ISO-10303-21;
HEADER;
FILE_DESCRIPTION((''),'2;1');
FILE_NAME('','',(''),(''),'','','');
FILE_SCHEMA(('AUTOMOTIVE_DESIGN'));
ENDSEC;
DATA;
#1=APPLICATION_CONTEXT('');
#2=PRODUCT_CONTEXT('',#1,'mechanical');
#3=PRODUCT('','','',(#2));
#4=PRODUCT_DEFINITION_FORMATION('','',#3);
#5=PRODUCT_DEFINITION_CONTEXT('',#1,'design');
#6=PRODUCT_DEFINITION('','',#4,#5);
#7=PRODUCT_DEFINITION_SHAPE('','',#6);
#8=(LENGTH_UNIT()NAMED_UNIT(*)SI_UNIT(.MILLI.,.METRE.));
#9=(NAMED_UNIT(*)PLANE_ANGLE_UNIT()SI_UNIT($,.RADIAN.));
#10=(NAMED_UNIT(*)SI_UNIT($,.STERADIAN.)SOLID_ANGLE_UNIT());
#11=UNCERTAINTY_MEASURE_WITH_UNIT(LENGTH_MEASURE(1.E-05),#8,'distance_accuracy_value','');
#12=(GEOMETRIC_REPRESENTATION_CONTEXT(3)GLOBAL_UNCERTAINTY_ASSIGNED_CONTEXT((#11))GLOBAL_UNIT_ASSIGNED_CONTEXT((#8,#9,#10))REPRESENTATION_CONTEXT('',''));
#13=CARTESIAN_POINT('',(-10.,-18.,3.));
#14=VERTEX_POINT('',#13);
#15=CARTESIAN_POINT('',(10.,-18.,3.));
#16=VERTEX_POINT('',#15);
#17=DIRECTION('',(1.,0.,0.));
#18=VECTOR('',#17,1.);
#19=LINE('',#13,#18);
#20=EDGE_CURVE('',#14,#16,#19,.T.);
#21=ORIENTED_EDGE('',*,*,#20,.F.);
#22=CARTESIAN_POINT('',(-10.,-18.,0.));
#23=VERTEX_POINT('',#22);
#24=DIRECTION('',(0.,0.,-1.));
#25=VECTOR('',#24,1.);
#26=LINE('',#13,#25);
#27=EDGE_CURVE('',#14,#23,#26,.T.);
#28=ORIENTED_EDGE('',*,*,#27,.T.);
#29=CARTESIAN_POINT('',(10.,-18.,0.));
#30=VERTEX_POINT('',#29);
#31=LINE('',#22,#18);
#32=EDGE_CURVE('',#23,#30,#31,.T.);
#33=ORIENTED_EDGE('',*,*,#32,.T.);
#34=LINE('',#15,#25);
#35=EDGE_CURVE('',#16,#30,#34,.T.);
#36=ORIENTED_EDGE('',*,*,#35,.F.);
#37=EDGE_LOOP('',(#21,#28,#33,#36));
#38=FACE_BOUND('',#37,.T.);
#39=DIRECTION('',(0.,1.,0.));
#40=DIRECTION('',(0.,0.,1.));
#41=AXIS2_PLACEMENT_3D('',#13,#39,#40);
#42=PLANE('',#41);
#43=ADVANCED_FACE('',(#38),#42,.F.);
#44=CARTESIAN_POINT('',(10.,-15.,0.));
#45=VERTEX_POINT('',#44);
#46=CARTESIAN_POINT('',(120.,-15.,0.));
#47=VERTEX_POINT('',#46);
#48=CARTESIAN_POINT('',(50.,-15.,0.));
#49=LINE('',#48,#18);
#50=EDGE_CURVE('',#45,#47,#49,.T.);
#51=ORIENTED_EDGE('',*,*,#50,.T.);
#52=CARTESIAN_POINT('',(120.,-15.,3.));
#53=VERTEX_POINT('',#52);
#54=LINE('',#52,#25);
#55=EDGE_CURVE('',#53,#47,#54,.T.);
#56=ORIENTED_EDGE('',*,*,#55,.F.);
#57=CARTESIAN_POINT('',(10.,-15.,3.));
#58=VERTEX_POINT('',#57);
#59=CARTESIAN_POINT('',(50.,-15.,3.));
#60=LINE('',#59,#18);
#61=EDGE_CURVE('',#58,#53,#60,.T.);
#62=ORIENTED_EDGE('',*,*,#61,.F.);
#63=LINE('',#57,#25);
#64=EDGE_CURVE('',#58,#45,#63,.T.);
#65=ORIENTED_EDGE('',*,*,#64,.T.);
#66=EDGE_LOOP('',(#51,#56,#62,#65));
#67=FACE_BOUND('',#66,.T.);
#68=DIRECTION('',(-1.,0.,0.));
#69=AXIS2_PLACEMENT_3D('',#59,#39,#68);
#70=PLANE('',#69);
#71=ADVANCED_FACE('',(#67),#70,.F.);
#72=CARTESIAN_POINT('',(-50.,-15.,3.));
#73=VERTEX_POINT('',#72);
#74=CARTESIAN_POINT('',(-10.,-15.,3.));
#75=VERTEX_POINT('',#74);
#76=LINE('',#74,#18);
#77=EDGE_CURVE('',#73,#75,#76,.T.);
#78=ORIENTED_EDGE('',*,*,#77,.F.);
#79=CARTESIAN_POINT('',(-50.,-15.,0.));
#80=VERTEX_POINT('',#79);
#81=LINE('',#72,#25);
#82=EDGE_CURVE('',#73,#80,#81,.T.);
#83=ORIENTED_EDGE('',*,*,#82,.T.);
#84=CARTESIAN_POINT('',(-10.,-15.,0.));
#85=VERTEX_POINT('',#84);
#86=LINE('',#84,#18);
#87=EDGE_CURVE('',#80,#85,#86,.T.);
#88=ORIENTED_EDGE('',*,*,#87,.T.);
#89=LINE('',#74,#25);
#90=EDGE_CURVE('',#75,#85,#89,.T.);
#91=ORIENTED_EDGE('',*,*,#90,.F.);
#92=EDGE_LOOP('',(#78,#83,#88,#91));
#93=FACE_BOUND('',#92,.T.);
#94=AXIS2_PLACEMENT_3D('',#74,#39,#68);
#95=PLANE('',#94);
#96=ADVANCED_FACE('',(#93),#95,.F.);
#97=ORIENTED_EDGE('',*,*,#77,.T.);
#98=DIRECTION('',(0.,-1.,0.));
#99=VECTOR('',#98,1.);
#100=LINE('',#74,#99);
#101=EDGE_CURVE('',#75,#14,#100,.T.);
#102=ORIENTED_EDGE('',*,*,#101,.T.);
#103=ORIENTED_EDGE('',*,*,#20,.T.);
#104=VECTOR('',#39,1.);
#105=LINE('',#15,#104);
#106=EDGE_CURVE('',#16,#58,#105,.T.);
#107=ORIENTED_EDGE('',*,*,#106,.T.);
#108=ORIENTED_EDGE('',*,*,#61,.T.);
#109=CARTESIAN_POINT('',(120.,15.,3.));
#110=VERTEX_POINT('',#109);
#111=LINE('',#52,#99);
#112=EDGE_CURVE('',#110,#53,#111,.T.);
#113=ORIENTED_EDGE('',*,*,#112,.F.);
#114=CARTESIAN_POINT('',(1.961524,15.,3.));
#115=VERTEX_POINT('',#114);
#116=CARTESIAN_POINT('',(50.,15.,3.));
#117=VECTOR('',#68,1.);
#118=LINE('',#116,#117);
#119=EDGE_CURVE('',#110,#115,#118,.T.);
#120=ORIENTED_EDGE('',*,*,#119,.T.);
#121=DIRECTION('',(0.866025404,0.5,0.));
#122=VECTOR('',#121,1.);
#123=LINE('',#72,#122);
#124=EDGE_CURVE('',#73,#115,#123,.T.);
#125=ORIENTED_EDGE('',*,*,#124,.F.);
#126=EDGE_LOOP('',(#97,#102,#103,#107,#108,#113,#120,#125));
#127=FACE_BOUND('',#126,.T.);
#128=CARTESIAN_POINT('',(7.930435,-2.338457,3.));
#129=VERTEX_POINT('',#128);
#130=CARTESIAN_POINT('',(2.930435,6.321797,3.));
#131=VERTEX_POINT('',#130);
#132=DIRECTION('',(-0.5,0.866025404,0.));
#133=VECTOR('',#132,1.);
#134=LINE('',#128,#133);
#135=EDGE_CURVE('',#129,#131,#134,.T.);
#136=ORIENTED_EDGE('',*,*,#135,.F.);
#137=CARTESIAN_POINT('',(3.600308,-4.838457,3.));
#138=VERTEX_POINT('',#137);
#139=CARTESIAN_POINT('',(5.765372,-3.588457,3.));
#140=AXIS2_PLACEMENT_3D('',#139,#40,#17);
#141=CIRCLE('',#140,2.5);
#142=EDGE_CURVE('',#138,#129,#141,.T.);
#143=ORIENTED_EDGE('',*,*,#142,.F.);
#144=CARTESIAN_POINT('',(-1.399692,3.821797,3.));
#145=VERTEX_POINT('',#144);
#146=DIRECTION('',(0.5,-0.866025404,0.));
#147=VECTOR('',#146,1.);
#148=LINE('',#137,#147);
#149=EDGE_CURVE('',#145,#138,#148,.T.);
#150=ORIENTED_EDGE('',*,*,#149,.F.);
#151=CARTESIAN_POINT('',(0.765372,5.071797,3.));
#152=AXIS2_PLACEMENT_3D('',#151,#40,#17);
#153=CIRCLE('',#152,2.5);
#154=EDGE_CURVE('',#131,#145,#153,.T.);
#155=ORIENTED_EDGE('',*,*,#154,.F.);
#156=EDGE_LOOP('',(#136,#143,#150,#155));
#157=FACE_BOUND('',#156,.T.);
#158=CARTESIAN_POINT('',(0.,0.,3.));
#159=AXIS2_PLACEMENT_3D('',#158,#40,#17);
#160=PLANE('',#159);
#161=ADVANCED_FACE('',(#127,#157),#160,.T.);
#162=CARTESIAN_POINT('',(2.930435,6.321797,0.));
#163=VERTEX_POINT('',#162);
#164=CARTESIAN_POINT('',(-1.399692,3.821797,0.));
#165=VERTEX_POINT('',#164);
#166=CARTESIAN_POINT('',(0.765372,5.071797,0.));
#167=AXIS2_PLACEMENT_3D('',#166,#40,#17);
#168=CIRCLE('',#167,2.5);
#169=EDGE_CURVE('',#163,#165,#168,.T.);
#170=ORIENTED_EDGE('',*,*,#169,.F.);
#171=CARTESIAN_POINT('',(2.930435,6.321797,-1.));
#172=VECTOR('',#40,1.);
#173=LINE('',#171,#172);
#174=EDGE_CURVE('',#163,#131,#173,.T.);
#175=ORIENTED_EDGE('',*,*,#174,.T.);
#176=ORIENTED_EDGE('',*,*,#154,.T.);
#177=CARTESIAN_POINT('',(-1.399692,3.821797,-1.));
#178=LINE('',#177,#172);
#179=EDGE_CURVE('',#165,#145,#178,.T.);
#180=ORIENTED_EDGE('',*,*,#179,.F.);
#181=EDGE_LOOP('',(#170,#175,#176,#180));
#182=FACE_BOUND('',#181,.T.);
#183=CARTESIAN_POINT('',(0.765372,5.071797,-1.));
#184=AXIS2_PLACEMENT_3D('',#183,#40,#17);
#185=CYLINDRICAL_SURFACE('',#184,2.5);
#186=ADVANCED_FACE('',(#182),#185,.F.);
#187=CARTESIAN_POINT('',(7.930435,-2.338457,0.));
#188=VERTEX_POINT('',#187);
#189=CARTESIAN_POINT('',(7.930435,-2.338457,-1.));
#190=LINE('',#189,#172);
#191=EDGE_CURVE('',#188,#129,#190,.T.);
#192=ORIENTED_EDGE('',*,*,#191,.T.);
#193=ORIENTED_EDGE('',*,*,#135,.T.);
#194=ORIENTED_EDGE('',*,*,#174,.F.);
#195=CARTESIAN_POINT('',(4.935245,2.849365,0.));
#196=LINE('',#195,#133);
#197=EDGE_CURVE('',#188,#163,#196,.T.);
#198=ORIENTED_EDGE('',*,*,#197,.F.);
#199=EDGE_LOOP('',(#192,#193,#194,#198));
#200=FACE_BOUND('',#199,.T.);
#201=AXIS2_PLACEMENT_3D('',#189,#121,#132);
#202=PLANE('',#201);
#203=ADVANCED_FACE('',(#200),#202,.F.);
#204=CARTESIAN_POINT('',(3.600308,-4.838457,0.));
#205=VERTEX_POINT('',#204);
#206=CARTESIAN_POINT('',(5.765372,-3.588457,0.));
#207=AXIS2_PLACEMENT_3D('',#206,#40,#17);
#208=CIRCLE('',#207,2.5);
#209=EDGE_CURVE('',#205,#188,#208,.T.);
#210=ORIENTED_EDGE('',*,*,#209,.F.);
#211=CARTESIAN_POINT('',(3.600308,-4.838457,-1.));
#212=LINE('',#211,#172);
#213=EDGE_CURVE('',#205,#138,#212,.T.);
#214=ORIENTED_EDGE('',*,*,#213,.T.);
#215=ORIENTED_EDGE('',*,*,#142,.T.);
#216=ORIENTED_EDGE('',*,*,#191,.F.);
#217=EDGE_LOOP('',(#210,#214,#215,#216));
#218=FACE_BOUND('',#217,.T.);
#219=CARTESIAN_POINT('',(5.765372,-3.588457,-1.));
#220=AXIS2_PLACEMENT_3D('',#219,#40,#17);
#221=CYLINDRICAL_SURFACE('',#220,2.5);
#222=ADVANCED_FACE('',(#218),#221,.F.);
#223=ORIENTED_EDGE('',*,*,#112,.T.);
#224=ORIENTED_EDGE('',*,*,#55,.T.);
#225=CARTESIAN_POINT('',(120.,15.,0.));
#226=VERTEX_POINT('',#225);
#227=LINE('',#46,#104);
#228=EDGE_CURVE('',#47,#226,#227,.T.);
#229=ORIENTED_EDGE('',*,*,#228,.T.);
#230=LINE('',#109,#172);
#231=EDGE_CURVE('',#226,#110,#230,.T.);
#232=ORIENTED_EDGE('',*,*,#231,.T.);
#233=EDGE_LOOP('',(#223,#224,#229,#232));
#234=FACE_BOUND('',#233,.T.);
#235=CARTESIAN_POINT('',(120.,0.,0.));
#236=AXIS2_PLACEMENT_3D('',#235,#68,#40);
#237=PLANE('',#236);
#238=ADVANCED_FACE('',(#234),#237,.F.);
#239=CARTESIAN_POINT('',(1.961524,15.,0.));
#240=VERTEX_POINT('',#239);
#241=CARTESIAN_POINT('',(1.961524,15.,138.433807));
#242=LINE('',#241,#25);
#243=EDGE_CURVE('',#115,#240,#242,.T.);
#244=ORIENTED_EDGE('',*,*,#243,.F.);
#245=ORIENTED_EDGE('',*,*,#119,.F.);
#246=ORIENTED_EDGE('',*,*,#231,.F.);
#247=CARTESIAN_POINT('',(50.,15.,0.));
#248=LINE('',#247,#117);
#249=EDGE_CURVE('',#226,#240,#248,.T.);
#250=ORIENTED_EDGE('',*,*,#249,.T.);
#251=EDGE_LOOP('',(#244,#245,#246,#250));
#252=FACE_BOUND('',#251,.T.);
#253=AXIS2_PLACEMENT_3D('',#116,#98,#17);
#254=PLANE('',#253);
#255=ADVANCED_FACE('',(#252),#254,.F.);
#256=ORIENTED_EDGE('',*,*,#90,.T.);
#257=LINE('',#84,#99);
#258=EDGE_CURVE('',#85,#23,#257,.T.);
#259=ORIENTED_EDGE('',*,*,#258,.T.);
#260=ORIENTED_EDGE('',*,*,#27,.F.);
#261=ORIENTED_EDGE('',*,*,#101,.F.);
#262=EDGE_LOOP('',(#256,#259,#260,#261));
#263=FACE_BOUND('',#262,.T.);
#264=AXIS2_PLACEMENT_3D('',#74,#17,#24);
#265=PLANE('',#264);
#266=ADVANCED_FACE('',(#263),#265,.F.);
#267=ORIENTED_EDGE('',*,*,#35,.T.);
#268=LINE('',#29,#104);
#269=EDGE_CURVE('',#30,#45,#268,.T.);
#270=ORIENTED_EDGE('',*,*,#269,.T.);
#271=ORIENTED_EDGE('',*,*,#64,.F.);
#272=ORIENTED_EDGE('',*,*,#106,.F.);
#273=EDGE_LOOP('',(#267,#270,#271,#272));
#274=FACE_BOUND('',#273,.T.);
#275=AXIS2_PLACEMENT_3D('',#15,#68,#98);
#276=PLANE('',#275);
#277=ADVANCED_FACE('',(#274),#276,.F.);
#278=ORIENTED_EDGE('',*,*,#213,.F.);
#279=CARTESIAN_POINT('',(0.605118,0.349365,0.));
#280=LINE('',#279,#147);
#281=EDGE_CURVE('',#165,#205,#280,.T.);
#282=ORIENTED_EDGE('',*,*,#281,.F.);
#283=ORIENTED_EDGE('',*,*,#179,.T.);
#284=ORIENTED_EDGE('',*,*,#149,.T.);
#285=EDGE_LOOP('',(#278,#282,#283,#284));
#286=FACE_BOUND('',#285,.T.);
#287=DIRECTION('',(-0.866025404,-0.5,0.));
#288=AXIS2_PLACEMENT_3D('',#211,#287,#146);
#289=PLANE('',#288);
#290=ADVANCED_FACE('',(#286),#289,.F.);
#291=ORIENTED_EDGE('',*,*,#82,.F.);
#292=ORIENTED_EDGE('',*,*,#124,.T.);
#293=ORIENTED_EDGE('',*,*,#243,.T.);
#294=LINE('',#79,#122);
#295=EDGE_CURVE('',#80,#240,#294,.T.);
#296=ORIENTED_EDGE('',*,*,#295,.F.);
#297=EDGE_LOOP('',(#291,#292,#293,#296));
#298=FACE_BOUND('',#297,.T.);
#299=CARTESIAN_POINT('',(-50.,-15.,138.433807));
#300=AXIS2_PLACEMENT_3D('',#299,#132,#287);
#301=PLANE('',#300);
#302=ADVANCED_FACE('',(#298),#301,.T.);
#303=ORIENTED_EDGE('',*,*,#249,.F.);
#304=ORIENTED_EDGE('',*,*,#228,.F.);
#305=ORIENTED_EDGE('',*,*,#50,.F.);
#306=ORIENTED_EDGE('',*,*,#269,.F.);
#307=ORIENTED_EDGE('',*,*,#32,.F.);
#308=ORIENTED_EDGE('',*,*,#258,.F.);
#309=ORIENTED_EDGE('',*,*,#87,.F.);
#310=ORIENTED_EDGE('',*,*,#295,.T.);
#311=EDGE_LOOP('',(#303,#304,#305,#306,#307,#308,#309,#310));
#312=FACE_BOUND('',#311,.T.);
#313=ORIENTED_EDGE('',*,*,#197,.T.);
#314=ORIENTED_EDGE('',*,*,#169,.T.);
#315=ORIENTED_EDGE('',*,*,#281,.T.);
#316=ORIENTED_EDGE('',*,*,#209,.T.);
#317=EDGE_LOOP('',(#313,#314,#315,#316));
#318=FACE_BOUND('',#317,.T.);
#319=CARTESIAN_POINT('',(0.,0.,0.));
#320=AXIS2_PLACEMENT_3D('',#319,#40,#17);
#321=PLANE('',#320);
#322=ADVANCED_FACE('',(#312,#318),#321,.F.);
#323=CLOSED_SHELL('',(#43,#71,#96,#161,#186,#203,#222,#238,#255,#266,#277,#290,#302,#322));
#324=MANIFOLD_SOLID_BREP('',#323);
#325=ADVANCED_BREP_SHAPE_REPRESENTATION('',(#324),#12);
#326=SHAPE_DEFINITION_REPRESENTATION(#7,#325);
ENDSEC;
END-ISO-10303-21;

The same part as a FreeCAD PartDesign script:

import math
import FreeCAD as App
import Part
import Sketcher
Q = App.Units.Quantity


def add_polygon(sketch, points):
    """Adds a closed chain of lines whose ends are joined by coincident constraints."""
    first, n = sketch.GeometryCount, len(points)
    for a, b in zip(points, points[1:] + points[:1]):
        sketch.addGeometry(Part.LineSegment(App.Vector(*a, 0), App.Vector(*b, 0)), False)
    for i in range(n):
        sketch.addConstraint(Sketcher.Constraint("Coincident", first + i, 2, first + (i + 1) % n, 1))

doc = App.newDocument("Part")
params = doc.addObject("Spreadsheet::Sheet", "Params")
for row, (alias, value) in enumerate([
    ("sketch1_width", "20 mm"),
    ("sketch1_width2", "40 mm"),
    ("sketch1_height", "3 mm"),
    ("sketch1_height2", "30 mm"),
    ("pad1_length", "3 mm"),
    ("sketch2_height", "30 mm"),
    ("sketch3_radius", "2.5 mm"),
    ("sketch3_length", "10 mm"),
    ("pocket2_length", "4 mm"),
    ("sketch4_width", "30 mm"),
    ("sketch4_height", "3 mm"),
    ("pad2_length", "70 mm"),
], start=1):
    params.set(f"A{row}", alias)
    params.set(f"B{row}", "=" + value)
    params.setAlias(f"B{row}", alias)

body = doc.addObject("PartDesign::Body", "Body")

# Sketch on XY plane
sketch1 = body.newObject("Sketcher::SketchObject", "Sketch")
sketch1.AttachmentSupport = (doc.getObject("XY_Plane"), [""])
sketch1.MapMode = "FlatFace"
add_polygon(sketch1, [(-10, -15), (-10, -18), (10, -18), (10, -15), (50, -15), (50, 15), (-50, 15), (-50, -15)])  # lines 0-7
sketch1.addConstraint(Sketcher.Constraint("Vertical", 0))
sketch1.addConstraint(Sketcher.Constraint("Horizontal", 1))
sketch1.addConstraint(Sketcher.Constraint("Vertical", 2))
sketch1.addConstraint(Sketcher.Constraint("Horizontal", 3))
sketch1.addConstraint(Sketcher.Constraint("Vertical", 4))
sketch1.addConstraint(Sketcher.Constraint("Horizontal", 5))
sketch1.addConstraint(Sketcher.Constraint("Vertical", 6))
sketch1.addConstraint(Sketcher.Constraint("Horizontal", 7))
sketch1.addConstraint(Sketcher.Constraint("Symmetric", 3, 2, 5, 2, -1, 1))
sketch1.addConstraint(Sketcher.Constraint("Symmetric", 2, 2, 7, 2, -2))
sketch1.addConstraint(Sketcher.Constraint("DistanceX", 1, 1, 1, 2, 20.0))
sketch1.addConstraint(Sketcher.Constraint("DistanceX", 3, 1, 3, 2, 40.0))
sketch1.addConstraint(Sketcher.Constraint("DistanceY", 0, 2, 0, 1, 3.0))
sketch1.addConstraint(Sketcher.Constraint("DistanceY", 4, 1, 4, 2, 30.0))
sketch1.setExpression("Constraints[18]", "Params.sketch1_width")
sketch1.setExpression("Constraints[19]", "Params.sketch1_width2")
sketch1.setExpression("Constraints[20]", "Params.sketch1_height")
sketch1.setExpression("Constraints[21]", "Params.sketch1_height2")
pad1 = body.newObject("PartDesign::Pad", "Pad")
pad1.Profile = sketch1
pad1.setExpression("Length", "Params.pad1_length")

# Sketch on XY plane
sketch2 = body.newObject("Sketcher::SketchObject", "Sketch001")
sketch2.AttachmentSupport = (doc.getObject("XY_Plane"), [""])
sketch2.MapMode = "FlatFace"
sketch2.AttachmentOffset = App.Placement(App.Vector(0, 0, 3), App.Rotation())
add_polygon(sketch2, [(-50, -15), (2, 15), (-50, 15)])  # lines 0-2
sketch2.addConstraint(Sketcher.Constraint("Horizontal", 1))
sketch2.addConstraint(Sketcher.Constraint("Vertical", 2))
sketch2.addConstraint(Sketcher.Constraint("DistanceY", 2, 2, 2, 1, 30.0))
sketch2.addConstraint(Sketcher.Constraint("Angle", 0, Q("30 deg")))
sketch2.addConstraint(Sketcher.Constraint("DistanceY", -1, 1, 0, 2, 15.0))
sketch2.addConstraint(Sketcher.Constraint("DistanceX", 1, 2, -1, 1, 50.0))
sketch2.setExpression("Constraints[5]", "Params.sketch2_height")
pocket1 = body.newObject("PartDesign::Pocket", "Pocket")
pocket1.Profile = sketch2
pocket1.Type = "ThroughAll"
pocket1.Midplane = True

# Sketch on XY plane
sketch3 = body.newObject("Sketcher::SketchObject", "Sketch002")
sketch3.AttachmentSupport = (doc.getObject("XY_Plane"), [""])
sketch3.MapMode = "FlatFace"
sketch3.AttachmentOffset = App.Placement(App.Vector(0, 0, 3), App.Rotation())
sketch3.addGeometry(Part.LineSegment(App.Vector(7.9, -2.3, 0), App.Vector(2.9, 6.3, 0)), False)
sketch3.addGeometry(Part.ArcOfCircle(Part.Circle(App.Vector(0.8, 5.1, 0), App.Vector(0, 0, 1), 2.5), math.radians(30), math.radians(210)), False)
sketch3.addGeometry(Part.LineSegment(App.Vector(-1.4, 3.8, 0), App.Vector(3.6, -4.8, 0)), False)
sketch3.addGeometry(Part.ArcOfCircle(Part.Circle(App.Vector(5.8, -3.6, 0), App.Vector(0, 0, 1), 2.5), math.radians(-150), math.radians(30)), False)
sketch3.addConstraint(Sketcher.Constraint("Tangent", 0, 2, 1, 1))
sketch3.addConstraint(Sketcher.Constraint("Tangent", 1, 2, 2, 1))
sketch3.addConstraint(Sketcher.Constraint("Tangent", 2, 2, 3, 1))
sketch3.addConstraint(Sketcher.Constraint("Tangent", 3, 2, 0, 1))
sketch3.addConstraint(Sketcher.Constraint("Equal", 1, 3))
sketch3.addConstraint(Sketcher.Constraint("Radius", 1, 2.5))
sketch3.addConstraint(Sketcher.Constraint("Angle", 0, Q("120 deg")))
sketch3.addConstraint(Sketcher.Constraint("Distance", 0, 10.0))
sketch3.addConstraint(Sketcher.Constraint("DistanceX", -1, 1, 1, 3, 0.765372))
sketch3.addConstraint(Sketcher.Constraint("DistanceY", -1, 1, 1, 3, 5.071797))
sketch3.setExpression("Constraints[5]", "Params.sketch3_radius")
sketch3.setExpression("Constraints[7]", "Params.sketch3_length")
pocket2 = body.newObject("PartDesign::Pocket", "Pocket001")
pocket2.Profile = sketch3
pocket2.setExpression("Length", "Params.pocket2_length")

# Sketch on YZ plane
sketch4 = body.newObject("Sketcher::SketchObject", "Sketch003")
sketch4.AttachmentSupport = (doc.getObject("YZ_Plane"), [""])
sketch4.MapMode = "FlatFace"
sketch4.AttachmentOffset = App.Placement(App.Vector(0, 0, 50), App.Rotation())
add_polygon(sketch4, [(15, 3), (-15, 3), (-15, 0), (15, 0)])  # lines 0-3
sketch4.addConstraint(Sketcher.Constraint("Horizontal", 0))
sketch4.addConstraint(Sketcher.Constraint("Vertical", 1))
sketch4.addConstraint(Sketcher.Constraint("Horizontal", 2))
sketch4.addConstraint(Sketcher.Constraint("Vertical", 3))
sketch4.addConstraint(Sketcher.Constraint("Symmetric", 1, 2, 2, 2, -1, 1))
sketch4.addConstraint(Sketcher.Constraint("DistanceX", 0, 2, 0, 1, 30.0))
sketch4.addConstraint(Sketcher.Constraint("DistanceY", 1, 2, 1, 1, 3.0))
sketch4.setExpression("Constraints[9]", "Params.sketch4_width")
sketch4.setExpression("Constraints[10]", "Params.sketch4_height")
pad2 = body.newObject("PartDesign::Pad", "Pad001")
pad2.Profile = sketch4
pad2.setExpression("Length", "Params.pad2_length")

doc.recompute()
